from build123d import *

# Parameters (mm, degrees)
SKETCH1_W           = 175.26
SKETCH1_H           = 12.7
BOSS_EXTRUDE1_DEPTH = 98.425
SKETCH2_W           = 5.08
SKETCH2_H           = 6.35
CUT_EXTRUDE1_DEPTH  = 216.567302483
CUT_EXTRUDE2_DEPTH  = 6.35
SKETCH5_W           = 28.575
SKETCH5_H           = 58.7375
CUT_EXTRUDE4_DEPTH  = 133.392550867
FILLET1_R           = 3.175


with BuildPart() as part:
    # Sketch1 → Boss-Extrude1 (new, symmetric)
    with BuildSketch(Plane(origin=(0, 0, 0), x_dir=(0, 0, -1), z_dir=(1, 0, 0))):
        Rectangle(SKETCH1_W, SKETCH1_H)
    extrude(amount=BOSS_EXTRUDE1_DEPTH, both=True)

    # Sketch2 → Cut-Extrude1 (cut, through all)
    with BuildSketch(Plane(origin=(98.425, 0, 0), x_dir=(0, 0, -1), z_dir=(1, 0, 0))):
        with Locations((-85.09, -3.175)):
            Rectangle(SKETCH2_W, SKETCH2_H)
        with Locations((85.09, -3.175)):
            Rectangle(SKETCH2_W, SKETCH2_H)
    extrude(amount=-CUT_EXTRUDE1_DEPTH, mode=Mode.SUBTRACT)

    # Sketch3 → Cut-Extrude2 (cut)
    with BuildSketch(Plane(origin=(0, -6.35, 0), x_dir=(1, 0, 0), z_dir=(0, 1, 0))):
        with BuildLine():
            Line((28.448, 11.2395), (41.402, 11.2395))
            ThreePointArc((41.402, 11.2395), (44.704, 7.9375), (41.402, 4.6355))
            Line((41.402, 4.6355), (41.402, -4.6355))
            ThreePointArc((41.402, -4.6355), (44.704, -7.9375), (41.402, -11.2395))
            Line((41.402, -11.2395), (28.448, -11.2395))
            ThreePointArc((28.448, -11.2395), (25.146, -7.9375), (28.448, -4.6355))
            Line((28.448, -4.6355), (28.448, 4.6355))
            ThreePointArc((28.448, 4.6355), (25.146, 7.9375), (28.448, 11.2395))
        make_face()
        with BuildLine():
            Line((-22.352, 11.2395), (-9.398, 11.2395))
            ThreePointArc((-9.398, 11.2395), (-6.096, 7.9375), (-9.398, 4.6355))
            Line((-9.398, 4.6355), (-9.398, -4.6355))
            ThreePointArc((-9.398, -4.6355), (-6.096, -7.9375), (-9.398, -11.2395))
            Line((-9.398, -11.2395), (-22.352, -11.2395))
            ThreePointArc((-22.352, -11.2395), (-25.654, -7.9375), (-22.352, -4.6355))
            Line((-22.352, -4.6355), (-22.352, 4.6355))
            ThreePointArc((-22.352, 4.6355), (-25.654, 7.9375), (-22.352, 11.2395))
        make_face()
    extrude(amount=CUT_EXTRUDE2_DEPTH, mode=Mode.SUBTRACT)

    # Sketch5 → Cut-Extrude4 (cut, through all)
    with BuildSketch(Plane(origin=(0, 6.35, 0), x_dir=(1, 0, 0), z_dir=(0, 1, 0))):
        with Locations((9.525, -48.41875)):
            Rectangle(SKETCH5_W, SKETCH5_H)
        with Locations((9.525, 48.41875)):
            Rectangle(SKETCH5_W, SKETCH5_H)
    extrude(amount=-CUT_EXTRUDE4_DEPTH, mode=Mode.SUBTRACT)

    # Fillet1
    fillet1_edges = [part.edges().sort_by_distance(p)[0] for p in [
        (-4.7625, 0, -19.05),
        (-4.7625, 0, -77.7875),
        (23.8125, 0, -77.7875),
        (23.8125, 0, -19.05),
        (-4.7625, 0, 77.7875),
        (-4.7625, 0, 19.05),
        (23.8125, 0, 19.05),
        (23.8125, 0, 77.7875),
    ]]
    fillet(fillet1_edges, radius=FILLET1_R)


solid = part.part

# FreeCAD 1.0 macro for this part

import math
import FreeCAD as App
import Part
import Sketcher
Q = App.Units.Quantity


def edges_at(feature, points):
    """Names of the edges that pass closest to the given points."""
    edges = feature.Shape.Edges
    near = lambda p: min(range(len(edges)), key=lambda i: edges[i].distToShape(Part.Vertex(*p))[0])
    return sorted({f"Edge{near(p) + 1}" for p in points})

doc = App.newDocument("Part")
body = doc.addObject("PartDesign::Body", "Body")

# Sketch on YZ plane
sketch1 = body.newObject("Sketcher::SketchObject", "Sketch")
sketch1.AttachmentSupport = (doc.getObject("YZ_Plane"), [""])
sketch1.MapMode = "FlatFace"
sketch1.addGeometry([
    Part.LineSegment(App.Vector(6.35, 87.63, 0), App.Vector(-6.35, 87.63, 0)),
    Part.LineSegment(App.Vector(-6.35, 87.63, 0), App.Vector(-6.35, -87.63, 0)),
    Part.LineSegment(App.Vector(-6.35, -87.63, 0), App.Vector(6.35, -87.63, 0)),
    Part.LineSegment(App.Vector(6.35, -87.63, 0), App.Vector(6.35, 87.63, 0)),
], False)
sketch1.addConstraint([
    Sketcher.Constraint("Coincident", 0, 2, 1, 1),
    Sketcher.Constraint("Coincident", 1, 2, 2, 1),
    Sketcher.Constraint("Coincident", 2, 2, 3, 1),
    Sketcher.Constraint("Coincident", 3, 2, 0, 1),
    Sketcher.Constraint("Horizontal", 0),
    Sketcher.Constraint("Vertical", 1),
    Sketcher.Constraint("Horizontal", 2),
    Sketcher.Constraint("Vertical", 3),
    Sketcher.Constraint("Symmetric", 0, 2, 2, 2, -1, 1),
    Sketcher.Constraint("DistanceX", 0, 2, 0, 1, Q("0.5 in")),
    Sketcher.Constraint("DistanceY", 1, 2, 1, 1, Q("6.9 in")),
])
pad1 = body.newObject("PartDesign::Pad", "Pad")
pad1.Profile = sketch1
pad1.Length = Q("7.75 in")
pad1.Midplane = True

# Sketch on YZ plane
sketch2 = body.newObject("Sketcher::SketchObject", "Sketch001")
sketch2.AttachmentSupport = (doc.getObject("YZ_Plane"), [""])
sketch2.MapMode = "FlatFace"
sketch2.AttachmentOffset = App.Placement(App.Vector(0, 0, 3.875 * 25.4), App.Rotation())
sketch2.addGeometry([
    Part.LineSegment(App.Vector(0, 87.63, 0), App.Vector(-6.35, 87.63, 0)),  # 0
    Part.LineSegment(App.Vector(-6.35, 87.63, 0), App.Vector(-6.35, 82.55, 0)),  # 1
    Part.LineSegment(App.Vector(-6.35, 82.55, 0), App.Vector(0, 82.55, 0)),  # 2
    Part.LineSegment(App.Vector(0, 82.55, 0), App.Vector(0, 87.63, 0)),  # 3
    Part.LineSegment(App.Vector(0, -82.55, 0), App.Vector(-6.35, -82.55, 0)),  # 4
    Part.LineSegment(App.Vector(-6.35, -82.55, 0), App.Vector(-6.35, -87.63, 0)),  # 5
    Part.LineSegment(App.Vector(-6.35, -87.63, 0), App.Vector(0, -87.63, 0)),  # 6
    Part.LineSegment(App.Vector(0, -87.63, 0), App.Vector(0, -82.55, 0)),  # 7
], False)
sketch2.addConstraint([
    Sketcher.Constraint("Coincident", 0, 2, 1, 1),
    Sketcher.Constraint("Coincident", 1, 2, 2, 1),
    Sketcher.Constraint("Coincident", 2, 2, 3, 1),
    Sketcher.Constraint("Coincident", 3, 2, 0, 1),
    Sketcher.Constraint("Coincident", 4, 2, 5, 1),
    Sketcher.Constraint("Coincident", 5, 2, 6, 1),
    Sketcher.Constraint("Coincident", 6, 2, 7, 1),
    Sketcher.Constraint("Coincident", 7, 2, 4, 1),
    Sketcher.Constraint("Horizontal", 0),
    Sketcher.Constraint("Vertical", 1),
    Sketcher.Constraint("Horizontal", 2),
    Sketcher.Constraint("Vertical", 3),
    Sketcher.Constraint("Horizontal", 4),
    Sketcher.Constraint("Vertical", 5),
    Sketcher.Constraint("Horizontal", 6),
    Sketcher.Constraint("Vertical", 7),
    Sketcher.Constraint("Symmetric", 3, 2, 6, 2, -1, 1),
    Sketcher.Constraint("Symmetric", 1, 2, 4, 2, -1),
    Sketcher.Constraint("PointOnObject", 2, 2, -2),
    Sketcher.Constraint("DistanceY", 1, 2, 1, 1, Q("0.2 in")),
    Sketcher.Constraint("DistanceX", 0, 2, 0, 1, Q("0.25 in")),
    Sketcher.Constraint("DistanceY", 4, 2, 1, 2, Q("6.5 in")),
])
pocket1 = body.newObject("PartDesign::Pocket", "Pocket")
pocket1.Profile = sketch2
pocket1.Type = "ThroughAll"

# Sketch on XZ plane
sketch3 = body.newObject("Sketcher::SketchObject", "Sketch002")
sketch3.AttachmentSupport = (doc.getObject("XZ_Plane"), [""])
sketch3.MapMode = "FlatFace"
sketch3.AttachmentOffset = App.Placement(App.Vector(0, 0, 0.25 * 25.4), App.Rotation())
sketch3.addGeometry([
    Part.LineSegment(App.Vector(41.402, -11.2395, 0), App.Vector(28.448, -11.2395, 0)),  # 0
    Part.ArcOfCircle(Part.Circle(App.Vector(28.448, -7.9375, 0), App.Vector(0, 0, 1), 3.302), math.radians(90), math.radians(270)),  # 1
    Part.LineSegment(App.Vector(28.448, -4.6355, 0), App.Vector(28.448, 4.6355, 0)),  # 2
    Part.ArcOfCircle(Part.Circle(App.Vector(28.448, 7.9375, 0), App.Vector(0, 0, 1), 3.302), math.radians(90), math.radians(270)),  # 3
    Part.LineSegment(App.Vector(28.448, 11.2395, 0), App.Vector(41.402, 11.2395, 0)),  # 4
    Part.ArcOfCircle(Part.Circle(App.Vector(41.402, 7.9375, 0), App.Vector(0, 0, 1), 3.302), math.radians(-90), math.radians(90)),  # 5
    Part.LineSegment(App.Vector(41.402, 4.6355, 0), App.Vector(41.402, -4.6355, 0)),  # 6
    Part.ArcOfCircle(Part.Circle(App.Vector(41.402, -7.9375, 0), App.Vector(0, 0, 1), 3.302), math.radians(-90), math.radians(90)),  # 7
    Part.LineSegment(App.Vector(-9.398, -11.2395, 0), App.Vector(-22.352, -11.2395, 0)),  # 8
    Part.ArcOfCircle(Part.Circle(App.Vector(-22.352, -7.9375, 0), App.Vector(0, 0, 1), 3.302), math.radians(90), math.radians(270)),  # 9
    Part.LineSegment(App.Vector(-22.352, -4.6355, 0), App.Vector(-22.352, 4.6355, 0)),  # 10
    Part.ArcOfCircle(Part.Circle(App.Vector(-22.352, 7.9375, 0), App.Vector(0, 0, 1), 3.302), math.radians(90), math.radians(270)),  # 11
    Part.LineSegment(App.Vector(-22.352, 11.2395, 0), App.Vector(-9.398, 11.2395, 0)),  # 12
    Part.ArcOfCircle(Part.Circle(App.Vector(-9.398, 7.9375, 0), App.Vector(0, 0, 1), 3.302), math.radians(-90), math.radians(90)),  # 13
    Part.LineSegment(App.Vector(-9.398, 4.6355, 0), App.Vector(-9.398, -4.6355, 0)),  # 14
    Part.ArcOfCircle(Part.Circle(App.Vector(-9.398, -7.9375, 0), App.Vector(0, 0, 1), 3.302), math.radians(-90), math.radians(90)),  # 15
], False)
sketch3.addConstraint([
    Sketcher.Constraint("Tangent", 0, 2, 1, 2),
    Sketcher.Constraint("Coincident", 1, 1, 2, 1),
    Sketcher.Constraint("Coincident", 2, 2, 3, 2),
    Sketcher.Constraint("Tangent", 3, 1, 4, 1),
    Sketcher.Constraint("Tangent", 4, 2, 5, 2),
    Sketcher.Constraint("Coincident", 5, 1, 6, 1),
    Sketcher.Constraint("Coincident", 6, 2, 7, 2),
    Sketcher.Constraint("Tangent", 7, 1, 0, 1),
    Sketcher.Constraint("Tangent", 8, 2, 9, 2),
    Sketcher.Constraint("Coincident", 9, 1, 10, 1),
    Sketcher.Constraint("Coincident", 10, 2, 11, 2),
    Sketcher.Constraint("Tangent", 11, 1, 12, 1),
    Sketcher.Constraint("Tangent", 12, 2, 13, 2),
    Sketcher.Constraint("Coincident", 13, 1, 14, 1),
    Sketcher.Constraint("Coincident", 14, 2, 15, 2),
    Sketcher.Constraint("Tangent", 15, 1, 8, 1),
    Sketcher.Constraint("Horizontal", 0),
    Sketcher.Constraint("Vertical", 2),
    Sketcher.Constraint("Horizontal", 4),
    Sketcher.Constraint("Vertical", 6),
    Sketcher.Constraint("Horizontal", 8),
    Sketcher.Constraint("Vertical", 10),
    Sketcher.Constraint("Horizontal", 12),
    Sketcher.Constraint("Vertical", 14),
    Sketcher.Constraint("Equal", 1, 3),
    Sketcher.Constraint("Equal", 3, 5),
    Sketcher.Constraint("Equal", 5, 7),
    Sketcher.Constraint("Equal", 7, 9),
    Sketcher.Constraint("Equal", 9, 11),
    Sketcher.Constraint("Equal", 11, 13),
    Sketcher.Constraint("Equal", 13, 15),
    Sketcher.Constraint("Symmetric", 1, 3, 3, 3, -1),
    Sketcher.Constraint("Symmetric", 9, 3, 11, 3, -1),
    Sketcher.Constraint("Horizontal", 7, 3, 9, 3),
    Sketcher.Constraint("Vertical", 5, 3, 7, 3),
    Sketcher.Constraint("Vertical", 13, 3, 15, 3),
    Sketcher.Constraint("Vertical", 0, 2, 1, 1),
    Sketcher.Constraint("Vertical", 4, 2, 5, 1),
    Sketcher.Constraint("Vertical", 8, 2, 9, 1),
    Sketcher.Constraint("Vertical", 12, 2, 13, 1),
    Sketcher.Constraint("Equal", 4, 8),
    Sketcher.Constraint("Radius", 1, Q("0.13 in")),
    Sketcher.Constraint("DistanceX", 9, 3, 1, 3, Q("2 in")),
    Sketcher.Constraint("DistanceX", 0, 2, 0, 1, Q("0.51 in")),
    Sketcher.Constraint("DistanceY", 2, 1, 2, 2, Q("0.365 in")),
    Sketcher.Constraint("DistanceX", -1, 1, 1, 3, Q("1.12 in")),
])
pocket2 = body.newObject("PartDesign::Pocket", "Pocket001")
pocket2.Profile = sketch3
pocket2.Length = Q("0.25 in")

# Sketch on XZ plane
sketch4 = body.newObject("Sketcher::SketchObject", "Sketch003")
sketch4.AttachmentSupport = (doc.getObject("XZ_Plane"), [""])
sketch4.MapMode = "FlatFace"
sketch4.AttachmentOffset = App.Placement(App.Vector(0, 0, -0.25 * 25.4), App.Rotation())
sketch4.addGeometry([
    Part.LineSegment(App.Vector(-4.7625, 19.05, 0), App.Vector(-4.7625, 77.7875, 0)),  # 0
    Part.LineSegment(App.Vector(-4.7625, 77.7875, 0), App.Vector(23.8125, 77.7875, 0)),  # 1
    Part.LineSegment(App.Vector(23.8125, 77.7875, 0), App.Vector(23.8125, 19.05, 0)),  # 2
    Part.LineSegment(App.Vector(23.8125, 19.05, 0), App.Vector(-4.7625, 19.05, 0)),  # 3
    Part.LineSegment(App.Vector(-4.7625, -77.7875, 0), App.Vector(-4.7625, -19.05, 0)),  # 4
    Part.LineSegment(App.Vector(-4.7625, -19.05, 0), App.Vector(23.8125, -19.05, 0)),  # 5
    Part.LineSegment(App.Vector(23.8125, -19.05, 0), App.Vector(23.8125, -77.7875, 0)),  # 6
    Part.LineSegment(App.Vector(23.8125, -77.7875, 0), App.Vector(-4.7625, -77.7875, 0)),  # 7
], False)
sketch4.addConstraint([
    Sketcher.Constraint("Coincident", 0, 2, 1, 1),
    Sketcher.Constraint("Coincident", 1, 2, 2, 1),
    Sketcher.Constraint("Coincident", 2, 2, 3, 1),
    Sketcher.Constraint("Coincident", 3, 2, 0, 1),
    Sketcher.Constraint("Coincident", 4, 2, 5, 1),
    Sketcher.Constraint("Coincident", 5, 2, 6, 1),
    Sketcher.Constraint("Coincident", 6, 2, 7, 1),
    Sketcher.Constraint("Coincident", 7, 2, 4, 1),
    Sketcher.Constraint("Vertical", 0),
    Sketcher.Constraint("Horizontal", 1),
    Sketcher.Constraint("Vertical", 2),
    Sketcher.Constraint("Horizontal", 3),
    Sketcher.Constraint("Vertical", 4),
    Sketcher.Constraint("Horizontal", 5),
    Sketcher.Constraint("Vertical", 6),
    Sketcher.Constraint("Horizontal", 7),
    Sketcher.Constraint("Symmetric", 3, 2, 4, 2, -1),
    Sketcher.Constraint("Symmetric", 1, 2, 6, 2, -1),
    Sketcher.Constraint("DistanceY", 4, 2, 3, 2, Q("1.5 in")),
    Sketcher.Constraint("DistanceX", 1, 1, 1, 2, Q("1.125 in")),
    Sketcher.Constraint("DistanceY", 0, 1, 0, 2, Q("2.3125 in")),
    Sketcher.Constraint("DistanceX", 0, 2, -1, 1, Q("0.1875 in")),
])
pocket3 = body.newObject("PartDesign::Pocket", "Pocket002")
pocket3.Profile = sketch4
pocket3.Type = "ThroughAll"
pocket3.Reversed = True
doc.recompute()

fillet = body.newObject("PartDesign::Fillet", "Fillet")
fillet.Base = (pocket3, edges_at(pocket3, [
    (-4.763, 0, -19.05),
    (-4.763, 0, -77.787),
    (23.812, 0, -77.787),
    (23.812, 0, -19.05),
    (-4.763, 0, 77.787),
    (-4.763, 0, 19.05),
    (23.812, 0, 19.05),
    (23.812, 0, 77.787),
]))
fillet.Radius = Q("0.125 in")

doc.recompute()
